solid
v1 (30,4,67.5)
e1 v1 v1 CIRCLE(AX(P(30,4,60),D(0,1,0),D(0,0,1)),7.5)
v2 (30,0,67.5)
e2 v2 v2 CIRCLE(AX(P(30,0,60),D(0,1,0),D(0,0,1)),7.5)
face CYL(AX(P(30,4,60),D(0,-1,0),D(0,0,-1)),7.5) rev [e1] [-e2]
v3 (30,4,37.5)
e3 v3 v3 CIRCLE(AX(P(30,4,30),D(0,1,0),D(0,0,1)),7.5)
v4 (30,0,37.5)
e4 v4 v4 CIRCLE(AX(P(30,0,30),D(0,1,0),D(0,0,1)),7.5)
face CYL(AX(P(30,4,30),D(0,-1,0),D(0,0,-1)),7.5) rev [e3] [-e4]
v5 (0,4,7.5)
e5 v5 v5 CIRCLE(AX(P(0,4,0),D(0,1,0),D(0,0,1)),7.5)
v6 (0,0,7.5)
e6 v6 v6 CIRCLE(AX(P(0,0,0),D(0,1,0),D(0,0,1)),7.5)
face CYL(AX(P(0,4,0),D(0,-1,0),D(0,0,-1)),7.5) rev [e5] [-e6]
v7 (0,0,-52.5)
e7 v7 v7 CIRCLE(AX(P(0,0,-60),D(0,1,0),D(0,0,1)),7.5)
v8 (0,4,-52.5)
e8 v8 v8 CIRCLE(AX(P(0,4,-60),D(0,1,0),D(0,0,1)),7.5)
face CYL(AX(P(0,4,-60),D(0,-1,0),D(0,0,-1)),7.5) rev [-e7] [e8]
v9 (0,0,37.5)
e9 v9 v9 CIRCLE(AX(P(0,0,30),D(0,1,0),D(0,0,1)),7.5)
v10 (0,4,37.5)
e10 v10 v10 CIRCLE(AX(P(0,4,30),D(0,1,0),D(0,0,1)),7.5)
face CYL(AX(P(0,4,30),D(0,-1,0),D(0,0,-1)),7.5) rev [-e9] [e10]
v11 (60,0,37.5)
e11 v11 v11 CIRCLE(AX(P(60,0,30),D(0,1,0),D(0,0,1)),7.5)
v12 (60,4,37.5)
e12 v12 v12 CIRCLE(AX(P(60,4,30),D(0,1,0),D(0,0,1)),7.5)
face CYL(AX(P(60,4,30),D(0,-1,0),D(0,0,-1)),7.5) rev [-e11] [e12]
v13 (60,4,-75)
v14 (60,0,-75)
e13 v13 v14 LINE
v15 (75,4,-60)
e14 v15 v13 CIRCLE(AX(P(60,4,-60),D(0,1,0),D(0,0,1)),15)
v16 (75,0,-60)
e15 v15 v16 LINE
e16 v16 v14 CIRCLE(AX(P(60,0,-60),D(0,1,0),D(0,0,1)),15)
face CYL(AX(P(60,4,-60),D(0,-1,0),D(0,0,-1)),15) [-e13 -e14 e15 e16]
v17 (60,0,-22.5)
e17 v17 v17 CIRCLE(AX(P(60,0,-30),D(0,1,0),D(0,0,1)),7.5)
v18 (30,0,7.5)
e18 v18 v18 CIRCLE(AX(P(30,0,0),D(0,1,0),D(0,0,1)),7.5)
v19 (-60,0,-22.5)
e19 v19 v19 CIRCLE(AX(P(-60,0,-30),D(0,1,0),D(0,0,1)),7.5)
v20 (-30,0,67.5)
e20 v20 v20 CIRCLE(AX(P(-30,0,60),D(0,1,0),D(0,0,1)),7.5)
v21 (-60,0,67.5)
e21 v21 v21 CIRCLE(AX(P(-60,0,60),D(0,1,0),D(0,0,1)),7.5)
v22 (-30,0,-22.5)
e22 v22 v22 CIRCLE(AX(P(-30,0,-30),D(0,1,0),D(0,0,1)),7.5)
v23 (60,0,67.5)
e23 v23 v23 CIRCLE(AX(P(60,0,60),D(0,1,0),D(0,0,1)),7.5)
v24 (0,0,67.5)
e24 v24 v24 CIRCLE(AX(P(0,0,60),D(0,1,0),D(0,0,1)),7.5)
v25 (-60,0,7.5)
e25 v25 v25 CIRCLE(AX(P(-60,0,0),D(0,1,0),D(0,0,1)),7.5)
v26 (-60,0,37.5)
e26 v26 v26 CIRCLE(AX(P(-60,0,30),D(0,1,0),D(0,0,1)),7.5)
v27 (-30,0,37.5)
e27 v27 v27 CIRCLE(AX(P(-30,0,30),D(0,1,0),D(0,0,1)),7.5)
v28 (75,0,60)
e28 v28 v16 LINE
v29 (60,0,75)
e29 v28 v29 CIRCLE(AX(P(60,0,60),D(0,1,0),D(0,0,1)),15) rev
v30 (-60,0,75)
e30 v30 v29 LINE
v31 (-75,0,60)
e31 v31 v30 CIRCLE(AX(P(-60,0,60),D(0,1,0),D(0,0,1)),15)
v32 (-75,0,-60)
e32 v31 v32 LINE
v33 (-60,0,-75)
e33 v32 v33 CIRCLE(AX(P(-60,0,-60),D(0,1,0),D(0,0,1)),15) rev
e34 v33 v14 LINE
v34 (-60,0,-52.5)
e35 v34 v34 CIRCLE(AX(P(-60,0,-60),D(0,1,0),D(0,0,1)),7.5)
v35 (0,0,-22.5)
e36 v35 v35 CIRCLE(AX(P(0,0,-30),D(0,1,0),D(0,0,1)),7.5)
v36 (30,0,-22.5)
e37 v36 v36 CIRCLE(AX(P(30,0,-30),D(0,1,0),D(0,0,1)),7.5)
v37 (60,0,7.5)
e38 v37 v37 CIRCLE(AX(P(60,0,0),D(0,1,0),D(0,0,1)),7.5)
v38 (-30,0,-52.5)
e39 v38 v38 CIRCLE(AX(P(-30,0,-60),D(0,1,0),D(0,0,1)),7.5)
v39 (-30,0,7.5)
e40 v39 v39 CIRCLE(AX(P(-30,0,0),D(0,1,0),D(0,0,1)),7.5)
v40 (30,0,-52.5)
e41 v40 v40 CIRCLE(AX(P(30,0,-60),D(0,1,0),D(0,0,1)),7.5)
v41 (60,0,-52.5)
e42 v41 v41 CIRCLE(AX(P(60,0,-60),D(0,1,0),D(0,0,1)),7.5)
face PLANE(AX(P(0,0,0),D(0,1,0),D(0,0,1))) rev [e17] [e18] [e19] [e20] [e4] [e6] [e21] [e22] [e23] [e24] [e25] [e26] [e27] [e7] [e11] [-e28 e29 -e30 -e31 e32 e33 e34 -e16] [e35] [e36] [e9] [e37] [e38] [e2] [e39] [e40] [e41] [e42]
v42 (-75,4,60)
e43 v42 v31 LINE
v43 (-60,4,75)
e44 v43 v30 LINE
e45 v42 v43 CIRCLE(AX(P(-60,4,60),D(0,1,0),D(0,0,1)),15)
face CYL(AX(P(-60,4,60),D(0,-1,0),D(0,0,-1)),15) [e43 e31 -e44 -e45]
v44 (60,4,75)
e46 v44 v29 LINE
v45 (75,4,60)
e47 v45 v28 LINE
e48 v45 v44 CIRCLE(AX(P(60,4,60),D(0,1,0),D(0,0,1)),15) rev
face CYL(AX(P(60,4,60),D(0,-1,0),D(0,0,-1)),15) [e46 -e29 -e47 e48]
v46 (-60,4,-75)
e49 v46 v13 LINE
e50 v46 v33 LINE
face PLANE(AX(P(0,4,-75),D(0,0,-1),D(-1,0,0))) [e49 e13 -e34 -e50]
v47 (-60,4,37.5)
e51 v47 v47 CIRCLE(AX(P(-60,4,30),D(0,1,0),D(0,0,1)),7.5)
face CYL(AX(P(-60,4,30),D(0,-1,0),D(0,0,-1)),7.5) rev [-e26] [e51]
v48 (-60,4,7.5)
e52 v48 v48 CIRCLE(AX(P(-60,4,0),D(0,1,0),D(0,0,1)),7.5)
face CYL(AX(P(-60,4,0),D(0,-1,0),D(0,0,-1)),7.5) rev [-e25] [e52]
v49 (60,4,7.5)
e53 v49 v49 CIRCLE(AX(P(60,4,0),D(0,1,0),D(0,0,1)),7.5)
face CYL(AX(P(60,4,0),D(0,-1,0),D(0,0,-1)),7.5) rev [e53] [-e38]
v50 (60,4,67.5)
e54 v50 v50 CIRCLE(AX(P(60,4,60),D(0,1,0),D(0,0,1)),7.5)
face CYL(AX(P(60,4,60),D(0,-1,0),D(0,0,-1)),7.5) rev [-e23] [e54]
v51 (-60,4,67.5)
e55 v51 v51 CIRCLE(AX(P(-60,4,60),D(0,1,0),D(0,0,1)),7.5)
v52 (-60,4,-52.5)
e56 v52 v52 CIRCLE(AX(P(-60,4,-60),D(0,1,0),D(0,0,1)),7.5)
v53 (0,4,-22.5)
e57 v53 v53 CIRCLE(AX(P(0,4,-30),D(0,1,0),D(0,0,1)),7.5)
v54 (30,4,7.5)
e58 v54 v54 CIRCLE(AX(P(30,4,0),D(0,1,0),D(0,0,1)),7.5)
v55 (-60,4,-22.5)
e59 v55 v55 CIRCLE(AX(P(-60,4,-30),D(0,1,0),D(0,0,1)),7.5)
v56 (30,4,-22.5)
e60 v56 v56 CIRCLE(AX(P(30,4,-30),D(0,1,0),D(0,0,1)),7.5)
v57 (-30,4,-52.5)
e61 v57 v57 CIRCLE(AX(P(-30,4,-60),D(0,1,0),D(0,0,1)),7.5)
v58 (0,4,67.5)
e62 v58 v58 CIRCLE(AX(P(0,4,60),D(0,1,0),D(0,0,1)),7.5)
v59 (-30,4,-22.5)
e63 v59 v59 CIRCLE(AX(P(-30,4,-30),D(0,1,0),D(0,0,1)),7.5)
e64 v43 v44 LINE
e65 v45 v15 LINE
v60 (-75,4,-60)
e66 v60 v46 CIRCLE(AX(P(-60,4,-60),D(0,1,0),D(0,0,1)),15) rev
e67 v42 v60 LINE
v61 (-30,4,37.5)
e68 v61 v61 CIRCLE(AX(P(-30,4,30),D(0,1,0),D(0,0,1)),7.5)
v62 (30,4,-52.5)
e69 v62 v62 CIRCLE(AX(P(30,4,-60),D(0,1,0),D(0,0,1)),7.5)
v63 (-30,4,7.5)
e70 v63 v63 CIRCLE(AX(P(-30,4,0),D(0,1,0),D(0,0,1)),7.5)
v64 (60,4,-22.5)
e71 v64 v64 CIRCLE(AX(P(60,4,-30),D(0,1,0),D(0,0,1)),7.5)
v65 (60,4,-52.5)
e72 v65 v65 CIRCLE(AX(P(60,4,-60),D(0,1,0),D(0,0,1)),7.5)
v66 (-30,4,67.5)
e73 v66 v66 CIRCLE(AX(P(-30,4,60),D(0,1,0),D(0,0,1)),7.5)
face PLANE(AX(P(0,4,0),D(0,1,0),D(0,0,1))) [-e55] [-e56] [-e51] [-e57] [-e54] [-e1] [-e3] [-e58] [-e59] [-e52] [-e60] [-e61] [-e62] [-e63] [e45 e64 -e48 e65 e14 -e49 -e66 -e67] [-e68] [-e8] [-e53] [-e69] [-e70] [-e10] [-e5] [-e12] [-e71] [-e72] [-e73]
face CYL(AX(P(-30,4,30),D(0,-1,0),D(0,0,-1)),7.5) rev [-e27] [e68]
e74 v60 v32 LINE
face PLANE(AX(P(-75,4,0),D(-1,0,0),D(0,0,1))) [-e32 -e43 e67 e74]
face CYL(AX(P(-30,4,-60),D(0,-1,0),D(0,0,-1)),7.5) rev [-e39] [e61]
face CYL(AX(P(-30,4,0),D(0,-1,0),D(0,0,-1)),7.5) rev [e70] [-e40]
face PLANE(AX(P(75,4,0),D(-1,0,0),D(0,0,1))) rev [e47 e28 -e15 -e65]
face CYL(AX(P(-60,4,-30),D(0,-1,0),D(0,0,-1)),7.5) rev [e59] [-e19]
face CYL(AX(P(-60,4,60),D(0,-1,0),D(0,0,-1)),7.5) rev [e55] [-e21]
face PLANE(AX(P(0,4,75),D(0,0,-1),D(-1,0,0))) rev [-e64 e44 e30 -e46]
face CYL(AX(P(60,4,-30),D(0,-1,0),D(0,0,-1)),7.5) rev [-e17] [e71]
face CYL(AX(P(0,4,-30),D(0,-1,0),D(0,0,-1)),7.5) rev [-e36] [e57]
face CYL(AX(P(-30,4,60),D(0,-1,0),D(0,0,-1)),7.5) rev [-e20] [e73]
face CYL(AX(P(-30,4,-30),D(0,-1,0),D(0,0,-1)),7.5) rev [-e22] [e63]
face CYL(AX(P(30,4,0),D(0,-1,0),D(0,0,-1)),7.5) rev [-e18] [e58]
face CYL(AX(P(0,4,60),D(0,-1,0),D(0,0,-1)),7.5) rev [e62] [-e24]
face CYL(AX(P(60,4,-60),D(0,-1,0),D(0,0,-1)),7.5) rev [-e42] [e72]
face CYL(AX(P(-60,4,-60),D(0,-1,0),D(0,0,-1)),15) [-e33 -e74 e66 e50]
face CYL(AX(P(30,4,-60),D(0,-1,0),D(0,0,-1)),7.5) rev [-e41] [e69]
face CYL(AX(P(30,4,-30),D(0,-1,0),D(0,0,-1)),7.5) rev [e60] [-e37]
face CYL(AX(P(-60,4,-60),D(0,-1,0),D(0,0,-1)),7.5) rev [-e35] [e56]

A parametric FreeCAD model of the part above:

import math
import FreeCAD as App
import Part
import Sketcher
from FreeCAD import Vector

doc = App.newDocument("Part")
params = doc.addObject("Spreadsheet::Sheet", "Params")
for row, (alias, value) in enumerate([
    ("sketch1_diameter", "15 mm"),
    ("sketch1_radius", "15 mm"),
    ("sketch1_width", "120 mm"),
    ("pad1_length", "4 mm"),
], start=1):
    params.set(f"A{row}", alias)
    params.set(f"B{row}", "=" + value)
    params.setAlias(f"B{row}", alias)

body = doc.addObject("PartDesign::Body", "Body")

# Sketch on XZ plane
sketch1 = body.newObject("Sketcher::SketchObject", "Sketch")
sketch1.AttachmentSupport = (doc.getObject("XZ_Plane"), [""])
sketch1.MapMode = "FlatFace"
sketch1.addGeometry([
    Part.ArcOfCircle(Part.Circle(Vector(-60, 60, 0), Vector(0, 0, 1), 15), math.radians(90), math.radians(180)),  # 0
    Part.LineSegment(Vector(-60, 75, 0), Vector(60, 75, 0)),  # 1
    Part.ArcOfCircle(Part.Circle(Vector(60, 60, 0), Vector(0, 0, 1), 15), math.radians(0), math.radians(90)),  # 2
    Part.LineSegment(Vector(75, 60, 0), Vector(75, -60, 0)),  # 3
    Part.ArcOfCircle(Part.Circle(Vector(60, -60, 0), Vector(0, 0, 1), 15), math.radians(-90), math.radians(0)),  # 4
    Part.LineSegment(Vector(60, -75, 0), Vector(-60, -75, 0)),  # 5
    Part.ArcOfCircle(Part.Circle(Vector(-60, -60, 0), Vector(0, 0, 1), 15), math.radians(180), math.radians(270)),  # 6
    Part.LineSegment(Vector(-75, -60, 0), Vector(-75, 60, 0)),  # 7
    Part.Circle(Vector(-60, 60, 0), Vector(0, 0, 1), 8),  # 8
    Part.Circle(Vector(-30, 60, 0), Vector(0, 0, 1), 8),  # 9
    Part.Circle(Vector(-60, 30, 0), Vector(0, 0, 1), 8),  # 10
    Part.Circle(Vector(-30, 30, 0), Vector(0, 0, 1), 8),  # 11
    Part.Circle(Vector(0, 60, 0), Vector(0, 0, 1), 8),  # 12
    Part.Circle(Vector(30, 60, 0), Vector(0, 0, 1), 8),  # 13
    Part.Circle(Vector(60, 60, 0), Vector(0, 0, 1), 8),  # 14
    Part.Circle(Vector(0, 30, 0), Vector(0, 0, 1), 8),  # 15
    Part.Circle(Vector(30, 30, 0), Vector(0, 0, 1), 8),  # 16
    Part.Circle(Vector(60, 30, 0), Vector(0, 0, 1), 8),  # 17
    Part.Circle(Vector(-60, 0, 0), Vector(0, 0, 1), 8),  # 18
    Part.Circle(Vector(-60, -30, 0), Vector(0, 0, 1), 8),  # 19
    Part.Circle(Vector(-30, 0, 0), Vector(0, 0, 1), 8),  # 20
    Part.Circle(Vector(-30, -30, 0), Vector(0, 0, 1), 8),  # 21
    Part.Circle(Vector(-60, -60, 0), Vector(0, 0, 1), 8),  # 22
    Part.Circle(Vector(-30, -60, 0), Vector(0, 0, 1), 8),  # 23
    Part.Circle(Vector(0, 0, 0), Vector(0, 0, 1), 8),  # 24
    Part.Circle(Vector(30, 0, 0), Vector(0, 0, 1), 8),  # 25
    Part.Circle(Vector(0, -30, 0), Vector(0, 0, 1), 8),  # 26
    Part.Circle(Vector(30, -30, 0), Vector(0, 0, 1), 8),  # 27
    Part.Circle(Vector(60, 0, 0), Vector(0, 0, 1), 8),  # 28
    Part.Circle(Vector(60, -30, 0), Vector(0, 0, 1), 8),  # 29
    Part.Circle(Vector(0, -60, 0), Vector(0, 0, 1), 8),  # 30
    Part.Circle(Vector(30, -60, 0), Vector(0, 0, 1), 8),  # 31
    Part.Circle(Vector(60, -60, 0), Vector(0, 0, 1), 8),  # 32
], False)
sketch1.addConstraint([
    Sketcher.Constraint("Tangent", 0, 1, 1, 1),
    Sketcher.Constraint("Tangent", 1, 2, 2, 2),
    Sketcher.Constraint("Tangent", 2, 1, 3, 1),
    Sketcher.Constraint("Tangent", 3, 2, 4, 2),
    Sketcher.Constraint("Tangent", 4, 1, 5, 1),
    Sketcher.Constraint("Tangent", 5, 2, 6, 2),
    Sketcher.Constraint("Tangent", 6, 1, 7, 1),
    Sketcher.Constraint("Tangent", 7, 2, 0, 2),
    Sketcher.Constraint("Horizontal", 1),
    Sketcher.Constraint("Vertical", 3),
    Sketcher.Constraint("Horizontal", 5),
    Sketcher.Constraint("Vertical", 7),
    Sketcher.Constraint("Coincident", 24, 3, -1, 1),
    Sketcher.Constraint("Coincident", 8, 3, 0, 3),
    Sketcher.Constraint("Coincident", 14, 3, 2, 3),
    Sketcher.Constraint("Coincident", 22, 3, 6, 3),
    Sketcher.Constraint("Coincident", 32, 3, 4, 3),
    Sketcher.Constraint("Equal", 0, 2),
    Sketcher.Constraint("Equal", 2, 4),
    Sketcher.Constraint("Equal", 4, 6),
    Sketcher.Constraint("Equal", 8, 9),
    Sketcher.Constraint("Equal", 9, 10),
    Sketcher.Constraint("Equal", 10, 11),
    Sketcher.Constraint("Equal", 11, 12),
    Sketcher.Constraint("Equal", 12, 13),
    Sketcher.Constraint("Equal", 13, 14),
    Sketcher.Constraint("Equal", 14, 15),
    Sketcher.Constraint("Equal", 15, 16),
    Sketcher.Constraint("Equal", 16, 17),
    Sketcher.Constraint("Equal", 17, 18),
    Sketcher.Constraint("Equal", 18, 19),
    Sketcher.Constraint("Equal", 19, 20),
    Sketcher.Constraint("Equal", 20, 21),
    Sketcher.Constraint("Equal", 21, 22),
    Sketcher.Constraint("Equal", 22, 23),
    Sketcher.Constraint("Equal", 23, 24),
    Sketcher.Constraint("Equal", 24, 25),
    Sketcher.Constraint("Equal", 25, 26),
    Sketcher.Constraint("Equal", 26, 27),
    Sketcher.Constraint("Equal", 27, 28),
    Sketcher.Constraint("Equal", 28, 29),
    Sketcher.Constraint("Equal", 29, 30),
    Sketcher.Constraint("Equal", 30, 31),
    Sketcher.Constraint("Equal", 31, 32),
    Sketcher.Constraint("Symmetric", 0, 3, 4, 3, -1, 1),
    Sketcher.Constraint("Symmetric", 17, 3, 19, 3, -1, 1),
    Sketcher.Constraint("Symmetric", 16, 3, 21, 3, -1, 1),
    Sketcher.Constraint("Symmetric", 13, 3, 23, 3, -1, 1),
    Sketcher.Constraint("Symmetric", 20, 3, 25, 3, -1, 1),
    Sketcher.Constraint("Symmetric", 15, 3, 26, 3, -1, 1),
    Sketcher.Constraint("Symmetric", 11, 3, 27, 3, -1, 1),
    Sketcher.Constraint("Symmetric", 18, 3, 28, 3, -1, 1),
    Sketcher.Constraint("Symmetric", 10, 3, 29, 3, -1, 1),
    Sketcher.Constraint("Symmetric", 12, 3, 30, 3, -1, 1),
    Sketcher.Constraint("Symmetric", 9, 3, 31, 3, -1, 1),
    Sketcher.Constraint("Symmetric", 9, 3, 13, 3, -2),
    Sketcher.Constraint("Symmetric", 11, 3, 16, 3, -2),
    Sketcher.Constraint("Symmetric", 10, 3, 17, 3, -2),
    Sketcher.Constraint("PointOnObject", 12, 3, -2),
    Sketcher.Constraint("PointOnObject", 15, 3, -2),
    Sketcher.Constraint("PointOnObject", 18, 3, -1),
    Sketcher.Constraint("PointOnObject", 20, 3, -1),
    Sketcher.Constraint("Horizontal", 8, 3, 9, 3),
    Sketcher.Constraint("Horizontal", 10, 3, 11, 3),
    Sketcher.Constraint("Horizontal", 9, 3, 12, 3),
    Sketcher.Constraint("Horizontal", 11, 3, 15, 3),
    Sketcher.Constraint("Vertical", 8, 3, 10, 3),
    Sketcher.Constraint("Vertical", 9, 3, 11, 3),
    Sketcher.Constraint("Vertical", 10, 3, 18, 3),
    Sketcher.Constraint("Vertical", 11, 3, 20, 3),
    Sketcher.Constraint("Equal", 5, 3),
    Sketcher.Constraint("Diameter", 8, 15.0),
    Sketcher.Constraint("Radius", 0, 15.0),
    Sketcher.Constraint("DistanceX", 1, 1, 1, 2, 120.0),
    Sketcher.Constraint("DistanceX", 9, 3, -1, 1, 30.0),
    Sketcher.Constraint("DistanceY", -1, 1, 10, 3, 30.0),
])
sketch1.setExpression("Constraints[71]", "Params.sketch1_diameter")
sketch1.setExpression("Constraints[72]", "Params.sketch1_radius")
sketch1.setExpression("Constraints[73]", "Params.sketch1_width")
pad1 = body.newObject("PartDesign::Pad", "Pad")
pad1.Profile = sketch1
pad1.setExpression("Length", "Params.pad1_length")
pad1.Reversed = True

doc.recompute()
